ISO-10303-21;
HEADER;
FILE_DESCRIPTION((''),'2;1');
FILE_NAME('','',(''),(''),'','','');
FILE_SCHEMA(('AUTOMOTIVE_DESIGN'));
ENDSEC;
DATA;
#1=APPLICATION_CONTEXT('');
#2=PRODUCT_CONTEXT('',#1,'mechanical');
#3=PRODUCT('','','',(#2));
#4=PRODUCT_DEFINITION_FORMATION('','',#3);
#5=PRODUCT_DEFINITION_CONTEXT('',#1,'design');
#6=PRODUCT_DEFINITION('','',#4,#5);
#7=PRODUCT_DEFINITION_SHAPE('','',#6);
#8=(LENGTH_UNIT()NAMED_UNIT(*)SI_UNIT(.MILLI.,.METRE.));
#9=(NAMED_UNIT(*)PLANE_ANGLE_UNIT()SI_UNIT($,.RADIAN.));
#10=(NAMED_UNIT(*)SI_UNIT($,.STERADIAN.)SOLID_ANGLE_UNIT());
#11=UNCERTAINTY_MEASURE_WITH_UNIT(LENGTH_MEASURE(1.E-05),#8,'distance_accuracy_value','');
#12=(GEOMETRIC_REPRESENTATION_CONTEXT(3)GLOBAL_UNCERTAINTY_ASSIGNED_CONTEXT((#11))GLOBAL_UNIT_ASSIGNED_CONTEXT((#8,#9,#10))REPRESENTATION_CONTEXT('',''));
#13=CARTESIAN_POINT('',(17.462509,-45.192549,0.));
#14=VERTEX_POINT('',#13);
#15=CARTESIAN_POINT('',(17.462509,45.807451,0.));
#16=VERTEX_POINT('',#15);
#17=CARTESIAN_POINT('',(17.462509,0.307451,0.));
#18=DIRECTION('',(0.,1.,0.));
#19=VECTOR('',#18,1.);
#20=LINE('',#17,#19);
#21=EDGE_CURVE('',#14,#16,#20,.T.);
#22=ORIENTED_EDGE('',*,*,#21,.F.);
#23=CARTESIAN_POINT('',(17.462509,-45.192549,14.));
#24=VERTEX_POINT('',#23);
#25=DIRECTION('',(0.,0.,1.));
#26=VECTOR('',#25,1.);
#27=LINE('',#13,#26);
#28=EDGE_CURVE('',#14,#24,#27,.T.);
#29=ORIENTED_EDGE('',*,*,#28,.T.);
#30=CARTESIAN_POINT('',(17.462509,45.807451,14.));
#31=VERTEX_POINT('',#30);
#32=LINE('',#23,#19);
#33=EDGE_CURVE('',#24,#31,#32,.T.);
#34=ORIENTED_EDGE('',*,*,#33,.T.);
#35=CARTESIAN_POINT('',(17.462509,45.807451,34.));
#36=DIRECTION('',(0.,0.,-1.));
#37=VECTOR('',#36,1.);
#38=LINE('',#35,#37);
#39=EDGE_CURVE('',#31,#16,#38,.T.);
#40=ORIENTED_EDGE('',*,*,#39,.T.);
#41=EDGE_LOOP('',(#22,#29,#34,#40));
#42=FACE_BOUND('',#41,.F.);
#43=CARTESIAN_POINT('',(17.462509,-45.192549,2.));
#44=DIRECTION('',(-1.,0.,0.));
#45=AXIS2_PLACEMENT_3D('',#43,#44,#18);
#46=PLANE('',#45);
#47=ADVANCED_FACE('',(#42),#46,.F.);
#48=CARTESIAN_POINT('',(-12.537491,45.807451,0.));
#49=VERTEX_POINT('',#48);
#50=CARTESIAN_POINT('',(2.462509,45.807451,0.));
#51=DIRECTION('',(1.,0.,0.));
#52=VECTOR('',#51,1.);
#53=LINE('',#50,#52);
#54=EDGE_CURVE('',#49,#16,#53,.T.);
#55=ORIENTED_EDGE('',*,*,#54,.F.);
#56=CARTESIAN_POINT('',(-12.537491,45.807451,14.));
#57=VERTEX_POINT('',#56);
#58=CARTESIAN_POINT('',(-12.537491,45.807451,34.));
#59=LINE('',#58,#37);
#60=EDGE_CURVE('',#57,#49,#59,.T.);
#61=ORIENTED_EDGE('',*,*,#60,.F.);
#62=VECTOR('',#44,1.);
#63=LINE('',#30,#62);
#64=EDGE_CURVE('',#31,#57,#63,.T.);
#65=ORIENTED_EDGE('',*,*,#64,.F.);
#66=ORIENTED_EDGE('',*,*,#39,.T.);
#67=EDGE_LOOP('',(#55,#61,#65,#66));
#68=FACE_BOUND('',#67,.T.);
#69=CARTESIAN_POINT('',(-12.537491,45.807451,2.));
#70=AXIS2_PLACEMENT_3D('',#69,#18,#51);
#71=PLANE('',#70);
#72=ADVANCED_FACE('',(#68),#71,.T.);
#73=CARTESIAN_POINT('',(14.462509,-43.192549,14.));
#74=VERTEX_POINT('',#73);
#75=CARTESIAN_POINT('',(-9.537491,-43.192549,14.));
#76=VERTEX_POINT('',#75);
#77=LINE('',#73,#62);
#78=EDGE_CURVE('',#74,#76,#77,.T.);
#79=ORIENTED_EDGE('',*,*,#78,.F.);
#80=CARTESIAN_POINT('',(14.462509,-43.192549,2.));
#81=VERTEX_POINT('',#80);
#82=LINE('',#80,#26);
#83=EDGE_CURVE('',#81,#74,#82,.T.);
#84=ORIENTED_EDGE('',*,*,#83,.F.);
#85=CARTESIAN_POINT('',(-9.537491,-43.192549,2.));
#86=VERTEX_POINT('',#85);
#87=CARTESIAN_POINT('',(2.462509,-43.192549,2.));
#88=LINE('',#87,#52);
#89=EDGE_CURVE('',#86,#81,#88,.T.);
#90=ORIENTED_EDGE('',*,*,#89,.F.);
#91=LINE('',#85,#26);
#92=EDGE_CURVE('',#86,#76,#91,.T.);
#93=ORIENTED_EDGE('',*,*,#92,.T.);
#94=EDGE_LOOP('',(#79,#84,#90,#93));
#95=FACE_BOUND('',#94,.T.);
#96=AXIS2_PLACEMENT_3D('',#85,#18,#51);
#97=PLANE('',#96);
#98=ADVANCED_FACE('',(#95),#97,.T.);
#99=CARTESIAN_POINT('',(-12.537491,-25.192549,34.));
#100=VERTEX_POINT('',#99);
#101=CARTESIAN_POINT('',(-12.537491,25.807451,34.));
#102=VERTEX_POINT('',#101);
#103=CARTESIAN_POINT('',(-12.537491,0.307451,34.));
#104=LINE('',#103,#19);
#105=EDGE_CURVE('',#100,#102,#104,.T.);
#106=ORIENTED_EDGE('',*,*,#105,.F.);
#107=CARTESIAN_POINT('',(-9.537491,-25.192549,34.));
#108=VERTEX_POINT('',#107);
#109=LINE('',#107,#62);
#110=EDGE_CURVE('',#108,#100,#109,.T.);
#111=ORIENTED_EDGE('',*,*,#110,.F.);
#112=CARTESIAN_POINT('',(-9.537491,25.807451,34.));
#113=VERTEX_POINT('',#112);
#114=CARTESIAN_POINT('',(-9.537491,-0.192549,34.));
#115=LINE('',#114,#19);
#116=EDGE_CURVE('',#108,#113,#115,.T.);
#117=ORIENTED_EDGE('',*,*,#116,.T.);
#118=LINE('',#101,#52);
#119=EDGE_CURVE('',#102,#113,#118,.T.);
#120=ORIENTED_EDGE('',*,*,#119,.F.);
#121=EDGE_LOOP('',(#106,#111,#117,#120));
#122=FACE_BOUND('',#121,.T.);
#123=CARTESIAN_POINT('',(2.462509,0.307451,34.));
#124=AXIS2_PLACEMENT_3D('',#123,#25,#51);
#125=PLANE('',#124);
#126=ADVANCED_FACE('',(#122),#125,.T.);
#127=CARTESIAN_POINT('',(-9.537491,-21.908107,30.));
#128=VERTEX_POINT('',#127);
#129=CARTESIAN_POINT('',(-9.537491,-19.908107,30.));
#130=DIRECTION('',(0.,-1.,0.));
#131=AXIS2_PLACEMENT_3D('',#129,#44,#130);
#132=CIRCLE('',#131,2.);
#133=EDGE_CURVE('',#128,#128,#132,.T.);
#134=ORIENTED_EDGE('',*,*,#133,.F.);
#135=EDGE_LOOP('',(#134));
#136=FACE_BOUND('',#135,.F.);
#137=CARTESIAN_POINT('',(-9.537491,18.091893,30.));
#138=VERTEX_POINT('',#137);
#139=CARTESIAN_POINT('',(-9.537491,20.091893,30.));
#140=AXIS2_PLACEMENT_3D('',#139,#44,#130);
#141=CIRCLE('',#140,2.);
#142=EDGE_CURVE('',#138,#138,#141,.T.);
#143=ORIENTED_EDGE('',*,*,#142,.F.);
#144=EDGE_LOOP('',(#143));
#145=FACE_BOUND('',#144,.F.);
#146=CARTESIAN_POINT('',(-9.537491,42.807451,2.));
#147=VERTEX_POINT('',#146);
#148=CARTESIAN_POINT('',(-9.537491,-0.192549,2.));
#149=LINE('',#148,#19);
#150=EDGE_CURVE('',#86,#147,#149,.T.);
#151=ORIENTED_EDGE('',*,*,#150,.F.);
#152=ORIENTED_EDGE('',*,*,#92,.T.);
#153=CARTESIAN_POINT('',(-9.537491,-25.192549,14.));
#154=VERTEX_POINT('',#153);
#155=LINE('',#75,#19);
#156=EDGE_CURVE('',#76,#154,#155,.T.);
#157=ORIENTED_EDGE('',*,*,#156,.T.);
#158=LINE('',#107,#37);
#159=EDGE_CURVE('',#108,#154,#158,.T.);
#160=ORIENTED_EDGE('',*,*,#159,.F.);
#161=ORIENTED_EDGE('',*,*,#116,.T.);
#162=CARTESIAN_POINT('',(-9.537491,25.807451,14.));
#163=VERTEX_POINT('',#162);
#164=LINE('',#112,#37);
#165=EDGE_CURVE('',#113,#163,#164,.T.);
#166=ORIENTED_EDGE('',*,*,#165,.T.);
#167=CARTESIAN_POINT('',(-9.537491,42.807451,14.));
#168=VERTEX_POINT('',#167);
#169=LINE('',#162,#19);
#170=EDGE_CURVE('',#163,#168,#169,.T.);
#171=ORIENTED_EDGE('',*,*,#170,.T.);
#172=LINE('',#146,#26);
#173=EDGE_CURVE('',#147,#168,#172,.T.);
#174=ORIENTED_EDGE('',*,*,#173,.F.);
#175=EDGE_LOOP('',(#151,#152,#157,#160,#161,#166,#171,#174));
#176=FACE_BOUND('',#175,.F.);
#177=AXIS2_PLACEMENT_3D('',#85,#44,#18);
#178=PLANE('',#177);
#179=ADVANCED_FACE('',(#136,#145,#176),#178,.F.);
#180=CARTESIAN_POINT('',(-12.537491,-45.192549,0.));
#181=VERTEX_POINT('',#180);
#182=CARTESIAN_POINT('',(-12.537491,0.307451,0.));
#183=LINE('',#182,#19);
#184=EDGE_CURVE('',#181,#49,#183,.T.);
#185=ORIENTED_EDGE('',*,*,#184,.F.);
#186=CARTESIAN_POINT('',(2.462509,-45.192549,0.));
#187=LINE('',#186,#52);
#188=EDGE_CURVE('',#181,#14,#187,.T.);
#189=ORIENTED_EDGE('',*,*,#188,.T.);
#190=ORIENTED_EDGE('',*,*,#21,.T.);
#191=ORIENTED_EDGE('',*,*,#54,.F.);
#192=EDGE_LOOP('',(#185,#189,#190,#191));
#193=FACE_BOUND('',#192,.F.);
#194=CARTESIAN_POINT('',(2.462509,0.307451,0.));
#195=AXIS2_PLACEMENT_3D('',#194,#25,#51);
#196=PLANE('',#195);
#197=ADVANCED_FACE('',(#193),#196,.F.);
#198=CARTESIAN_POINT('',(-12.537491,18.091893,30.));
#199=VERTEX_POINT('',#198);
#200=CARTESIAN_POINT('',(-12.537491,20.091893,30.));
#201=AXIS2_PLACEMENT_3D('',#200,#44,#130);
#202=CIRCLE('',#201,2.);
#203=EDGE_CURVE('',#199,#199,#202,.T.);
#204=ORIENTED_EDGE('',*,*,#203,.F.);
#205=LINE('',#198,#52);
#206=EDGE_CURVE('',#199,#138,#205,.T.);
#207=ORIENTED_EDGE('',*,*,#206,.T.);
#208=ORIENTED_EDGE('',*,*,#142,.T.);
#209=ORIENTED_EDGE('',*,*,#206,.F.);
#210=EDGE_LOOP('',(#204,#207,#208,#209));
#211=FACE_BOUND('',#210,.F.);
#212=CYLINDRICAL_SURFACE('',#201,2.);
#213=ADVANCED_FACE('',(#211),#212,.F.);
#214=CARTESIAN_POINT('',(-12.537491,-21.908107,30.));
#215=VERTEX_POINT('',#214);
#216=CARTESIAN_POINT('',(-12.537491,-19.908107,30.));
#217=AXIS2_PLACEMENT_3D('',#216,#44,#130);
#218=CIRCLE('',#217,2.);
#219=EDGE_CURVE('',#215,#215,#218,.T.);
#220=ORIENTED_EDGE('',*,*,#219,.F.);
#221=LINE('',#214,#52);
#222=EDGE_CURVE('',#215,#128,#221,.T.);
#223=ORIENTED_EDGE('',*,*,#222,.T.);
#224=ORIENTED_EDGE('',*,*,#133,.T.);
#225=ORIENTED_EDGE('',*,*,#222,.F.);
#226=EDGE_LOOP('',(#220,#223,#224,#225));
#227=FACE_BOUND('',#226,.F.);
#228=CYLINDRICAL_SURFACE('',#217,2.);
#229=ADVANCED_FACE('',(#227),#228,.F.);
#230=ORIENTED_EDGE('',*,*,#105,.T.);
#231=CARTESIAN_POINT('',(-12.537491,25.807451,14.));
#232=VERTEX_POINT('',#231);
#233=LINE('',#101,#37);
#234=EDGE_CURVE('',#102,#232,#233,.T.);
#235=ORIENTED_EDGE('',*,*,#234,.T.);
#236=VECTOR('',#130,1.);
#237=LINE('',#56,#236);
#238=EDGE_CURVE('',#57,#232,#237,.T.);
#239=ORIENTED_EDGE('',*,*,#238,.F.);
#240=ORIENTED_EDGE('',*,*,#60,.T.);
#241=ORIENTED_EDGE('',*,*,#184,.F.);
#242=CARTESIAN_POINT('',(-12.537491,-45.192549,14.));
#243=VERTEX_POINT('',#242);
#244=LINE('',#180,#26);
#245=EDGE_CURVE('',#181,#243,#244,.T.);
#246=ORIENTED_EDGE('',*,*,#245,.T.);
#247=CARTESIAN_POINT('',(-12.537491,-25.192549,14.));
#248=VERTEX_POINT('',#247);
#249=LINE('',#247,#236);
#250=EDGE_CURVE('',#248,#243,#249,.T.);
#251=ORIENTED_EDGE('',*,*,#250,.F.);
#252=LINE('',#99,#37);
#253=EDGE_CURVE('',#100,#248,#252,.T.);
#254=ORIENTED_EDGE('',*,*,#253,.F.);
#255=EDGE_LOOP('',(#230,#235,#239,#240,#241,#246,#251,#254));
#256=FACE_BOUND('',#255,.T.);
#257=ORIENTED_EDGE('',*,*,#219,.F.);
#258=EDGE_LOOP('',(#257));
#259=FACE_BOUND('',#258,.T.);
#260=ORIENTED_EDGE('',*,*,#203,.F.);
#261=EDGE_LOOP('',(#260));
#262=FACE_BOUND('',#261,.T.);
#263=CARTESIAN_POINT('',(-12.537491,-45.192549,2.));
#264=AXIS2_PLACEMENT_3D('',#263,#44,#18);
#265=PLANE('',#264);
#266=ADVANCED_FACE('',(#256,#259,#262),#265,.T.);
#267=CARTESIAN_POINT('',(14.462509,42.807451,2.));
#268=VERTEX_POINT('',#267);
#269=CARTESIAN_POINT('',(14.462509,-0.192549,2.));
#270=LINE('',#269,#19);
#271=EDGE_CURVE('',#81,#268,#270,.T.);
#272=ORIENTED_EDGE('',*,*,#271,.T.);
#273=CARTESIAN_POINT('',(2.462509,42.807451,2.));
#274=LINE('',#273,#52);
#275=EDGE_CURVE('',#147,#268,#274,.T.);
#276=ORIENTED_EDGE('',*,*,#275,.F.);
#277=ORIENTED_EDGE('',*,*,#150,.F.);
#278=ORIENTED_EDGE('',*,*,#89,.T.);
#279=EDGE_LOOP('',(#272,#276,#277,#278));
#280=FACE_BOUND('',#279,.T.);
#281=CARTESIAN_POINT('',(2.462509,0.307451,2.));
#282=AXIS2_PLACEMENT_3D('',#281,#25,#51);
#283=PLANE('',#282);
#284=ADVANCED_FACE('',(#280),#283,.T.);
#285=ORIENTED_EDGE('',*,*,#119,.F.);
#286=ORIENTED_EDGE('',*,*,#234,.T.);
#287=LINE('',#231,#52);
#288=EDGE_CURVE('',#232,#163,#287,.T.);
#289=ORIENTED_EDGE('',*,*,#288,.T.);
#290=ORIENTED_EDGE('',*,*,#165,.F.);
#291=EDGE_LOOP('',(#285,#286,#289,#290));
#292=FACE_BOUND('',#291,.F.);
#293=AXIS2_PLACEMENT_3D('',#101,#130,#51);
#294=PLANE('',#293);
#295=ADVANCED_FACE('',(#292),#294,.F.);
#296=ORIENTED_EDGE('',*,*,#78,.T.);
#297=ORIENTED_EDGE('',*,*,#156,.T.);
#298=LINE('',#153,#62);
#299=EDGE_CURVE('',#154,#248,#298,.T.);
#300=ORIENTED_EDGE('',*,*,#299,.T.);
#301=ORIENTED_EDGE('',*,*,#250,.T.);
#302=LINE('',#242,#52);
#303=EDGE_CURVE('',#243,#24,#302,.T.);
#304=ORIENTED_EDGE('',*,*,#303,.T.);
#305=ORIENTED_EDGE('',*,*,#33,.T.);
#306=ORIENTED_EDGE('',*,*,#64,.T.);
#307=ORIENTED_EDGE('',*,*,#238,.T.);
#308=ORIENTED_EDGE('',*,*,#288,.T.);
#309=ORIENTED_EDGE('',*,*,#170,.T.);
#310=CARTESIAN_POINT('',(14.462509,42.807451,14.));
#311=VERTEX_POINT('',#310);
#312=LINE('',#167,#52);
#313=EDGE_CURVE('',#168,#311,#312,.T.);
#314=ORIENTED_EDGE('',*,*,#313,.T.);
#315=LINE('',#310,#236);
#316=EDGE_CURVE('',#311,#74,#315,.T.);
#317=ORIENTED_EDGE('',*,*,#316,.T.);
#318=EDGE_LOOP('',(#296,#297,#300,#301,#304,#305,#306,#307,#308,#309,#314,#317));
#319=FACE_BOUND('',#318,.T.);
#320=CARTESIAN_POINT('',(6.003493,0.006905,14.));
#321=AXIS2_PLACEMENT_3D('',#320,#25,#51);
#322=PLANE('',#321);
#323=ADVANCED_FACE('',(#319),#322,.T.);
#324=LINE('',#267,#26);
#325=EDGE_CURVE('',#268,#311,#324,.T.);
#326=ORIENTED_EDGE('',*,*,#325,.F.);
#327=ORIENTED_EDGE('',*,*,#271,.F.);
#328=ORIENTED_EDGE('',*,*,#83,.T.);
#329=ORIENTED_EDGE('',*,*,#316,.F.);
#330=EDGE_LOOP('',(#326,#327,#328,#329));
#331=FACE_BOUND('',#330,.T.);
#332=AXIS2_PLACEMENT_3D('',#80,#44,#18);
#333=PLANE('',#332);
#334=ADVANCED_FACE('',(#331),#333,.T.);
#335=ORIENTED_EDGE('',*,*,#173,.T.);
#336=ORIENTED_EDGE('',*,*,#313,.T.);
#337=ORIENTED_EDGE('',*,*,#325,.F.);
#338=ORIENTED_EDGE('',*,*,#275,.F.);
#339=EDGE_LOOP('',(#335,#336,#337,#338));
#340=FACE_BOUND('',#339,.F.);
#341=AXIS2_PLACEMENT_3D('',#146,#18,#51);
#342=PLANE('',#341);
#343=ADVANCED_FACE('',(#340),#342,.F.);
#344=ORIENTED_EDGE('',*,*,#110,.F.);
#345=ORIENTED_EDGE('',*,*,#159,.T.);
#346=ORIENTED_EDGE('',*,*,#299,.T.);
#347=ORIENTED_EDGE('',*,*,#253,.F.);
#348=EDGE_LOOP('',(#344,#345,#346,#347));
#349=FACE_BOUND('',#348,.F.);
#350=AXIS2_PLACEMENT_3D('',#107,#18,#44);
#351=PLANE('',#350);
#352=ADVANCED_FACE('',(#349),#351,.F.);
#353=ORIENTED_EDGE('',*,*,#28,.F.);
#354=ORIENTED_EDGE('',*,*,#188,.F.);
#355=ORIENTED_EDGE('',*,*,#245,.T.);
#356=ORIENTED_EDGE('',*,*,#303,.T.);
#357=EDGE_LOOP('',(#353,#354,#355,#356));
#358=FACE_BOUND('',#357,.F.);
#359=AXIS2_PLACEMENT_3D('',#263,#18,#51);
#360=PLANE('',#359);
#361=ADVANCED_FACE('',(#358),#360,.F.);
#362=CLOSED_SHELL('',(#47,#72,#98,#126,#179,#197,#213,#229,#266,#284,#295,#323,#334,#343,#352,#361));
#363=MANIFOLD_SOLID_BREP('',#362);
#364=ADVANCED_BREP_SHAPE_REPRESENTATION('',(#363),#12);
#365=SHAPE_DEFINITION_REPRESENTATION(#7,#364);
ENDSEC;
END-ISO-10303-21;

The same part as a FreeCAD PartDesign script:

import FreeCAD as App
import Part
import Sketcher

V = App.Vector
Q = App.Units.Quantity


def add_polygon(sketch, points):
    """Adds a closed chain of lines whose ends are joined by coincident constraints."""
    first, n = sketch.GeometryCount, len(points)
    for a, b in zip(points, points[1:] + points[:1]):
        sketch.addGeometry(Part.LineSegment(App.Vector(*a, 0), App.Vector(*b, 0)), False)
    for i in range(n):
        sketch.addConstraint(Sketcher.Constraint("Coincident", first + i, 2, first + (i + 1) % n, 1))

doc = App.newDocument("Part")
body = doc.addObject("PartDesign::Body", "Body")

sketch1 = body.newObject("Sketcher::SketchObject", "Sketch")
sketch1.AttachmentSupport = (doc.getObject("XY_Plane"), [""])
sketch1.MapMode = "FlatFace"
add_polygon(sketch1, [(-13, 46), (-13, -45), (17, -45), (17, 46)])
sketch1.addConstraint(Sketcher.Constraint("Vertical", 0))
sketch1.addConstraint(Sketcher.Constraint("Horizontal", 1))
sketch1.addConstraint(Sketcher.Constraint("Vertical", 2))
sketch1.addConstraint(Sketcher.Constraint("Horizontal", 3))
sketch1.addConstraint(Sketcher.Constraint("DistanceX", 1, 1, 1, 2, Q("30 mm")))
sketch1.addConstraint(Sketcher.Constraint("DistanceY", 0, 2, 0, 1, Q("91 mm")))
sketch1.addConstraint(Sketcher.Constraint("DistanceX", 0, 2, -1, 1, Q("12.537491 mm")))
sketch1.addConstraint(Sketcher.Constraint("DistanceY", 0, 2, -1, 1, Q("45.192549 mm")))
pad1 = body.newObject("PartDesign::Pad", "Pad")
pad1.Profile = sketch1
pad1.Length = 2

sketch2 = body.newObject("Sketcher::SketchObject", "Sketch001")
sketch2.AttachmentSupport = (doc.getObject("XY_Plane"), [""])
sketch2.MapMode = "FlatFace"
sketch2.AttachmentOffset = App.Placement(V(0, 0, 2), App.Rotation())
add_polygon(sketch2, [(-13, 46), (-13, -45), (17, -45), (17, 46)])
add_polygon(sketch2, [(14, -43), (-10, -43), (-10, 43), (14, 43)])
sketch2.addConstraint(Sketcher.Constraint("Vertical", 0))
sketch2.addConstraint(Sketcher.Constraint("Horizontal", 1))
sketch2.addConstraint(Sketcher.Constraint("Vertical", 2))
sketch2.addConstraint(Sketcher.Constraint("Horizontal", 3))
sketch2.addConstraint(Sketcher.Constraint("Horizontal", 4))
sketch2.addConstraint(Sketcher.Constraint("Vertical", 5))
sketch2.addConstraint(Sketcher.Constraint("Horizontal", 6))
sketch2.addConstraint(Sketcher.Constraint("Vertical", 7))
sketch2.addConstraint(Sketcher.Constraint("DistanceX", 1, 1, 1, 2, Q("30 mm")))
sketch2.addConstraint(Sketcher.Constraint("DistanceX", 4, 2, 4, 1, Q("24 mm")))
sketch2.addConstraint(Sketcher.Constraint("DistanceY", 0, 2, 0, 1, Q("91 mm")))
sketch2.addConstraint(Sketcher.Constraint("DistanceY", 5, 1, 5, 2, Q("86 mm")))
sketch2.addConstraint(Sketcher.Constraint("DistanceX", 0, 2, 4, 2, Q("3 mm")))
sketch2.addConstraint(Sketcher.Constraint("DistanceY", 0, 2, 4, 2, Q("2 mm")))
sketch2.addConstraint(Sketcher.Constraint("DistanceX", 0, 2, -1, 1, Q("12.537491 mm")))
sketch2.addConstraint(Sketcher.Constraint("DistanceY", 0, 2, -1, 1, Q("45.192549 mm")))
pad2 = body.newObject("PartDesign::Pad", "Pad001")
pad2.Profile = sketch2
pad2.Length = 32

sketch3 = body.newObject("Sketcher::SketchObject", "Sketch002")
sketch3.AttachmentSupport = (doc.getObject("YZ_Plane"), [""])
sketch3.MapMode = "FlatFace"
sketch3.AttachmentOffset = App.Placement(V(0, 0, -12.537491), App.Rotation())
sketch3.addGeometry(Part.Circle(V(20.1, 30, 0), V(0, 0, 1), 2), False)
sketch3.addGeometry(Part.Circle(V(-19.9, 30, 0), V(0, 0, 1), 2), False)
sketch3.addConstraint(Sketcher.Constraint("Equal", 0, 1))
sketch3.addConstraint(Sketcher.Constraint("Horizontal", 0, 3, 1, 3))
sketch3.addConstraint(Sketcher.Constraint("Diameter", 0, Q("4 mm")))
sketch3.addConstraint(Sketcher.Constraint("DistanceY", -1, 1, 0, 3, Q("30 mm")))
sketch3.addConstraint(Sketcher.Constraint("DistanceX", 1, 3, 0, 3, Q("40 mm")))
sketch3.addConstraint(Sketcher.Constraint("DistanceX", -1, 1, 0, 3, Q("20.091893 mm")))
pocket1 = body.newObject("PartDesign::Pocket", "Pocket")
pocket1.Profile = sketch3
pocket1.Length = 25
pocket1.Reversed = True

sketch4 = body.newObject("Sketcher::SketchObject", "Sketch003")
sketch4.AttachmentSupport = (doc.getObject("XY_Plane"), [""])
sketch4.MapMode = "FlatFace"
sketch4.AttachmentOffset = App.Placement(V(0, 0, 34), App.Rotation())
add_polygon(sketch4, [(-12.5, 45.8), (-12.5, 25.8), (-9.5, 25.8), (-9.5, 42.8), (14.5, 42.8), (14.5, -43.2), (-9.5, -43.2), (-9.5, -25.2), (-12.5, -25.2), (-12.5, -45.2), (17.5, -45.2), (17.5, 45.8)])
sketch4.addConstraint(Sketcher.Constraint("Vertical", 0))
sketch4.addConstraint(Sketcher.Constraint("Horizontal", 1))
sketch4.addConstraint(Sketcher.Constraint("Vertical", 2))
sketch4.addConstraint(Sketcher.Constraint("Horizontal", 3))
sketch4.addConstraint(Sketcher.Constraint("Vertical", 4))
sketch4.addConstraint(Sketcher.Constraint("Horizontal", 5))
sketch4.addConstraint(Sketcher.Constraint("Vertical", 6))
sketch4.addConstraint(Sketcher.Constraint("Horizontal", 7))
sketch4.addConstraint(Sketcher.Constraint("Vertical", 8))
sketch4.addConstraint(Sketcher.Constraint("Horizontal", 9))
sketch4.addConstraint(Sketcher.Constraint("Vertical", 10))
sketch4.addConstraint(Sketcher.Constraint("Horizontal", 11))
sketch4.addConstraint(Sketcher.Constraint("Vertical", 2, 2, 5, 2))
sketch4.addConstraint(Sketcher.Constraint("Vertical", 0, 2, 7, 2))
sketch4.addConstraint(Sketcher.Constraint("Equal", 0, 8))
sketch4.addConstraint(Sketcher.Constraint("DistanceX", 1, 1, 1, 2, Q("3 mm")))
sketch4.addConstraint(Sketcher.Constraint("DistanceX", 3, 1, 3, 2, Q("24 mm")))
sketch4.addConstraint(Sketcher.Constraint("DistanceX", 9, 1, 9, 2, Q("30 mm")))
sketch4.addConstraint(Sketcher.Constraint("DistanceY", 0, 2, 0, 1, Q("20 mm")))
sketch4.addConstraint(Sketcher.Constraint("DistanceY", 2, 1, 2, 2, Q("17 mm")))
sketch4.addConstraint(Sketcher.Constraint("DistanceY", 4, 2, 4, 1, Q("86 mm")))
sketch4.addConstraint(Sketcher.Constraint("DistanceY", 6, 1, 6, 2, Q("18 mm")))
sketch4.addConstraint(Sketcher.Constraint("DistanceX", 0, 2, -1, 1, Q("12.537491 mm")))
sketch4.addConstraint(Sketcher.Constraint("DistanceY", -1, 1, 0, 2, Q("25.807451 mm")))
pocket2 = body.newObject("PartDesign::Pocket", "Pocket001")
pocket2.Profile = sketch4
pocket2.Length = 20

doc.recompute()
